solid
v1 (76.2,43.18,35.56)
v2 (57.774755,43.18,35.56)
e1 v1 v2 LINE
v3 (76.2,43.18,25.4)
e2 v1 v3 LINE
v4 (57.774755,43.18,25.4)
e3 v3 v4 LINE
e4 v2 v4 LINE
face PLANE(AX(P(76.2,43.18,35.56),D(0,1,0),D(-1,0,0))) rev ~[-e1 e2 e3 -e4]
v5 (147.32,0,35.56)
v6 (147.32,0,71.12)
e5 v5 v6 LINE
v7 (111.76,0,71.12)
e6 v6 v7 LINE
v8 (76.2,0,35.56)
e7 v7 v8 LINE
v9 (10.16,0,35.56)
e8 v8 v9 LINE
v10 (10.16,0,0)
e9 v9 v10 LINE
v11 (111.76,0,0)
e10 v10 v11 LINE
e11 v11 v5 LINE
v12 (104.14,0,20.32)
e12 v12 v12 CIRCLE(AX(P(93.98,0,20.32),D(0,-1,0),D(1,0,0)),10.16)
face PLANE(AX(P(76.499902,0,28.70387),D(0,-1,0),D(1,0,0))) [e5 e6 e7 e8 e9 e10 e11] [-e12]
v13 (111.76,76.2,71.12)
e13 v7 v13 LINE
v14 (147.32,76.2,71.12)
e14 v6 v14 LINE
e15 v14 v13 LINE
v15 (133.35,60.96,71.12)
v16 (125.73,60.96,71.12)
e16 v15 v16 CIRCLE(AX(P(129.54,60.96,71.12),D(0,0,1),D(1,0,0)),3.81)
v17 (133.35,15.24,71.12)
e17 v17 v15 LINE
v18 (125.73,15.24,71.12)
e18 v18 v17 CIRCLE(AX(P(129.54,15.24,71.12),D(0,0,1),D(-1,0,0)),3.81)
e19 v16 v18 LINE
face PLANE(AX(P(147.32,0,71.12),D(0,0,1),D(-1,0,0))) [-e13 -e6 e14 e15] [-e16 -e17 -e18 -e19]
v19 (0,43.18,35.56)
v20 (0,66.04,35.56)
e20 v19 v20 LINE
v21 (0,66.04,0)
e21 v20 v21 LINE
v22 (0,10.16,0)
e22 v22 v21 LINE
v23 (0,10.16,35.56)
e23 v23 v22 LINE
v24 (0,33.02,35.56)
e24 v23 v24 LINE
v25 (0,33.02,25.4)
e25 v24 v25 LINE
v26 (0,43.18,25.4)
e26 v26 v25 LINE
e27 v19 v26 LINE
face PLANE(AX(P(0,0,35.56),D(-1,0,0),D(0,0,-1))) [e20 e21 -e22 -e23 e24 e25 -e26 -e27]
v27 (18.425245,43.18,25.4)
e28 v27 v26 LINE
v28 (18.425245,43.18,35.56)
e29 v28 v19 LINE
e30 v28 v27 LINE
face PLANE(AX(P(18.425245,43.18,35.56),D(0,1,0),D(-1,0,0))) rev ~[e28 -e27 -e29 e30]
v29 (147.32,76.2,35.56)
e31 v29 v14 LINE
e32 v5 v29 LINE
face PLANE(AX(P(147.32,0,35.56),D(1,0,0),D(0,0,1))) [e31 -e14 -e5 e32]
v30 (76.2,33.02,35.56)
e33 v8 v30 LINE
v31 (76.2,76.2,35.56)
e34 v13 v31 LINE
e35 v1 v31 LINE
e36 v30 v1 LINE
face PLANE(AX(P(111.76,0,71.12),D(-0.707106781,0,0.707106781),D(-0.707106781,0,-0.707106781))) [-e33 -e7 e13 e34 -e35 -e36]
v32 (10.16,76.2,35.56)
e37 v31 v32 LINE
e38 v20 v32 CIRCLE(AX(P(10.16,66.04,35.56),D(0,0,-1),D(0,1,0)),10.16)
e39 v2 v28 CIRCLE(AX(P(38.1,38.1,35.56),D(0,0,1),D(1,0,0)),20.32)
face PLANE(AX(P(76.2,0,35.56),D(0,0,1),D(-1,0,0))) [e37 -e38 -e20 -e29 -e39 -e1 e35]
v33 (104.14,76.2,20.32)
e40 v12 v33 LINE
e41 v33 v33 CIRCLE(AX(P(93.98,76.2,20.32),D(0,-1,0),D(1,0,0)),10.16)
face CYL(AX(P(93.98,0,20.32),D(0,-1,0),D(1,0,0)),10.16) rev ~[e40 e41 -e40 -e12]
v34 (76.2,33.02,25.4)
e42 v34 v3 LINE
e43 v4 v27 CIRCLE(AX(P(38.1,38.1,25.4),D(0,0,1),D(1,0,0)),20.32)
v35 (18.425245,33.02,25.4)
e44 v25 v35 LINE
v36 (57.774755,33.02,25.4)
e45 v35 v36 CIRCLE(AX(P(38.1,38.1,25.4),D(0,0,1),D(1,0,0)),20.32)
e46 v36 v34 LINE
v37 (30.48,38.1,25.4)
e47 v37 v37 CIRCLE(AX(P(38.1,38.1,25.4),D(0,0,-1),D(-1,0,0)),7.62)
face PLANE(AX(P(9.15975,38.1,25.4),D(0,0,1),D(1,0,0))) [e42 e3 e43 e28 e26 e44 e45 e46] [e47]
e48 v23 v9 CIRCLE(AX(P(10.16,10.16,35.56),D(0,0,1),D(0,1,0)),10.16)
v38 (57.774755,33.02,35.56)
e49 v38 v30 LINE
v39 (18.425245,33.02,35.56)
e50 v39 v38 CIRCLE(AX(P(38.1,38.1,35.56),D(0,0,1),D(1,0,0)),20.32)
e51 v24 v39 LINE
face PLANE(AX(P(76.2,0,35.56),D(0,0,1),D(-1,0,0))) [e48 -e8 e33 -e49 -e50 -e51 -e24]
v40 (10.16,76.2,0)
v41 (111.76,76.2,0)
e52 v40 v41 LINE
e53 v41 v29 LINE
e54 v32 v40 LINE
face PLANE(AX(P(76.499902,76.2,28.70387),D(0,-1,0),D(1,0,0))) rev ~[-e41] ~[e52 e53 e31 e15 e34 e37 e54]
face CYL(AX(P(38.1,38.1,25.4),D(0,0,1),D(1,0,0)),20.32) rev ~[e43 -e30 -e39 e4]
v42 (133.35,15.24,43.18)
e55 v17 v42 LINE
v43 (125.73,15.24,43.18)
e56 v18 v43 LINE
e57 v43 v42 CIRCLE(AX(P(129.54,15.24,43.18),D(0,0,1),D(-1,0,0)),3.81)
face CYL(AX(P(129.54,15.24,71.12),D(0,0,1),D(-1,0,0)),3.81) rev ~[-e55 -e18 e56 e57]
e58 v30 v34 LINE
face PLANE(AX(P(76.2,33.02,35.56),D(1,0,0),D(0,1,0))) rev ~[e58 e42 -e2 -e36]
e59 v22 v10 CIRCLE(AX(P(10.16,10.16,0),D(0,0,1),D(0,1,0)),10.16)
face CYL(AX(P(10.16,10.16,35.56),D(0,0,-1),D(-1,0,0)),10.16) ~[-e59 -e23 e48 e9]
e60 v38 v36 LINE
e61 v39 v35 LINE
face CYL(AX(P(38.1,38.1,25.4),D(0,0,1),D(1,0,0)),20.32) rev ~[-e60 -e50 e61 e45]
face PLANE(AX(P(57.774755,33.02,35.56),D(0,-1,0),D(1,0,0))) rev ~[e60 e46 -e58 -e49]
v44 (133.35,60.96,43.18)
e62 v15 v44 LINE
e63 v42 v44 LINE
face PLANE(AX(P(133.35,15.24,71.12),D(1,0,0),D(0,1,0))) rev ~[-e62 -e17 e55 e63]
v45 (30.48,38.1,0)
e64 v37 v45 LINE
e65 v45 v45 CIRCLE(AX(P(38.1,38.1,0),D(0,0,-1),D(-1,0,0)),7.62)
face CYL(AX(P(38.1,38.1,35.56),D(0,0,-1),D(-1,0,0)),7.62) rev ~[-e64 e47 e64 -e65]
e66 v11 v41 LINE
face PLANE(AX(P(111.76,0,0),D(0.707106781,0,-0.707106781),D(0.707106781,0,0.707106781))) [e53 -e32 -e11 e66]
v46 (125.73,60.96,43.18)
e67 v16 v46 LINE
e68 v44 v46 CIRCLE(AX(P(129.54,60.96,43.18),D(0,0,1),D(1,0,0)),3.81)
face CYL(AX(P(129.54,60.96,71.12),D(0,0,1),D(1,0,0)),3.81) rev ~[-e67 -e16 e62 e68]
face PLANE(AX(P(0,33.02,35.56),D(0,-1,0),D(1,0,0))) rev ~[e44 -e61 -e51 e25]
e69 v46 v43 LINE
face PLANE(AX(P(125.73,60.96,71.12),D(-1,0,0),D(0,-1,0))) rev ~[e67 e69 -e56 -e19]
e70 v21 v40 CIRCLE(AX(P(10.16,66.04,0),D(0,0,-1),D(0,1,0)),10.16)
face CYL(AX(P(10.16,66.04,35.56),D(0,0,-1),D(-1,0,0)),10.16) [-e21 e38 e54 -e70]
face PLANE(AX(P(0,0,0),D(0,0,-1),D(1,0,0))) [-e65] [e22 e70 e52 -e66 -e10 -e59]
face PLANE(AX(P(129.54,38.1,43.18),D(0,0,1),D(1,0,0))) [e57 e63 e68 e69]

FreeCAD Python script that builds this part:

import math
import FreeCAD as App
import Part
import Sketcher
Q = App.Units.Quantity


def edges_at(feature, points):
    """Names of the edges that pass closest to the given points."""
    edges = feature.Shape.Edges
    near = lambda p: min(range(len(edges)), key=lambda i: edges[i].distToShape(Part.Vertex(*p))[0])
    return sorted({f"Edge{near(p) + 1}" for p in points})

doc = App.newDocument("Part")
body = doc.addObject("PartDesign::Body", "Body")

# Sketch on XZ plane
sketch1 = body.newObject("Sketcher::SketchObject", "Sketch")
sketch1.AttachmentSupport = (doc.getObject("XZ_Plane"), [""])
sketch1.MapMode = "FlatFace"
sketch1.addGeometry(Part.LineSegment(App.Vector(0, 36, 0), App.Vector(0, 0, 0)), False)
sketch1.addGeometry(Part.LineSegment(App.Vector(0, 0, 0), App.Vector(112, 0, 0)), False)
sketch1.addGeometry(Part.LineSegment(App.Vector(112, 0, 0), App.Vector(147, 36, 0)), False)
sketch1.addGeometry(Part.LineSegment(App.Vector(147, 36, 0), App.Vector(147, 71, 0)), False)
sketch1.addGeometry(Part.LineSegment(App.Vector(147, 71, 0), App.Vector(112, 71, 0)), False)
sketch1.addGeometry(Part.LineSegment(App.Vector(112, 71, 0), App.Vector(76, 36, 0)), False)
sketch1.addGeometry(Part.LineSegment(App.Vector(76, 36, 0), App.Vector(0, 36, 0)), False)
sketch1.addConstraint(Sketcher.Constraint("Coincident", 0, 2, 1, 1))
sketch1.addConstraint(Sketcher.Constraint("Coincident", 1, 2, 2, 1))
sketch1.addConstraint(Sketcher.Constraint("Coincident", 2, 2, 3, 1))
sketch1.addConstraint(Sketcher.Constraint("Coincident", 3, 2, 4, 1))
sketch1.addConstraint(Sketcher.Constraint("Coincident", 4, 2, 5, 1))
sketch1.addConstraint(Sketcher.Constraint("Coincident", 5, 2, 6, 1))
sketch1.addConstraint(Sketcher.Constraint("Coincident", 6, 2, 0, 1))
sketch1.addConstraint(Sketcher.Constraint("Vertical", 0))
sketch1.addConstraint(Sketcher.Constraint("Horizontal", 1))
sketch1.addConstraint(Sketcher.Constraint("Vertical", 3))
sketch1.addConstraint(Sketcher.Constraint("Horizontal", 4))
sketch1.addConstraint(Sketcher.Constraint("Horizontal", 6))
sketch1.addConstraint(Sketcher.Constraint("Coincident", 0, 2, -1, 1))
sketch1.addConstraint(Sketcher.Constraint("Parallel", 2, 5))
sketch1.addConstraint(Sketcher.Constraint("Horizontal", 2, 2, 5, 2))
sketch1.addConstraint(Sketcher.Constraint("Vertical", 1, 2, 4, 2))
sketch1.addConstraint(Sketcher.Constraint("Equal", 4, 0))
sketch1.addConstraint(Sketcher.Constraint("Equal", 0, 3))
sketch1.addConstraint(Sketcher.Constraint("DistanceX", 6, 2, 6, 1, Q("3 in")))
sketch1.addConstraint(Sketcher.Constraint("DistanceX", 1, 1, 1, 2, Q("4.4 in")))
pad1 = body.newObject("PartDesign::Pad", "Pad")
pad1.Profile = sketch1
pad1.Length = Q("3 in")
pad1.Reversed = True

# Sketch on XY plane
sketch2 = body.newObject("Sketcher::SketchObject", "Sketch001")
sketch2.AttachmentSupport = (doc.getObject("XY_Plane"), [""])
sketch2.MapMode = "FlatFace"
sketch2.AttachmentOffset = App.Placement(App.Vector(0, 0, 2.8 * 25.4), App.Rotation())
sketch2.addGeometry(Part.ArcOfCircle(Part.Circle(App.Vector(129.5, 15.2, 0), App.Vector(0, 0, 1), 3.8), math.radians(180), math.radians(360)), False)
sketch2.addGeometry(Part.LineSegment(App.Vector(133.3, 15.2, 0), App.Vector(133.3, 61, 0)), False)
sketch2.addGeometry(Part.ArcOfCircle(Part.Circle(App.Vector(129.5, 61, 0), App.Vector(0, 0, 1), 3.8), math.radians(0), math.radians(180)), False)
sketch2.addGeometry(Part.LineSegment(App.Vector(125.7, 61, 0), App.Vector(125.7, 15.2, 0)), False)
sketch2.addConstraint(Sketcher.Constraint("Tangent", 0, 2, 1, 1))
sketch2.addConstraint(Sketcher.Constraint("Tangent", 1, 2, 2, 1))
sketch2.addConstraint(Sketcher.Constraint("Tangent", 2, 2, 3, 1))
sketch2.addConstraint(Sketcher.Constraint("Tangent", 3, 2, 0, 1))
sketch2.addConstraint(Sketcher.Constraint("Vertical", 1))
sketch2.addConstraint(Sketcher.Constraint("Vertical", 3))
sketch2.addConstraint(Sketcher.Constraint("Radius", 0, Q("0.15 in")))
sketch2.addConstraint(Sketcher.Constraint("DistanceY", 1, 1, 1, 2, Q("1.8 in")))
sketch2.addConstraint(Sketcher.Constraint("DistanceX", -1, 1, 0, 3, Q("5.1 in")))
sketch2.addConstraint(Sketcher.Constraint("DistanceY", -1, 1, 0, 3, Q("0.6 in")))
pocket1 = body.newObject("PartDesign::Pocket", "Pocket")
pocket1.Profile = sketch2
pocket1.Length = Q("1.1 in")

# Sketch on XZ plane
sketch3 = body.newObject("Sketcher::SketchObject", "Sketch002")
sketch3.AttachmentSupport = (doc.getObject("XZ_Plane"), [""])
sketch3.MapMode = "FlatFace"
sketch3.addGeometry(Part.Circle(App.Vector(94, 20, 0), App.Vector(0, 0, 1), 10), False)
sketch3.addConstraint(Sketcher.Constraint("Diameter", 0, Q("0.8 in")))
sketch3.addConstraint(Sketcher.Constraint("DistanceX", -1, 1, 0, 3, Q("3.7 in")))
sketch3.addConstraint(Sketcher.Constraint("DistanceY", -1, 1, 0, 3, Q("0.8 in")))
pocket2 = body.newObject("PartDesign::Pocket", "Pocket001")
pocket2.Profile = sketch3
pocket2.Type = "ThroughAll"

# Sketch on XY plane
sketch4 = body.newObject("Sketcher::SketchObject", "Sketch003")
sketch4.AttachmentSupport = (doc.getObject("XY_Plane"), [""])
sketch4.MapMode = "FlatFace"
sketch4.AttachmentOffset = App.Placement(App.Vector(0, 0, 1.4 * 25.4), App.Rotation())
sketch4.addGeometry(Part.Circle(App.Vector(38, 38, 0), App.Vector(0, 0, 1), 8), False)
sketch4.addConstraint(Sketcher.Constraint("Diameter", 0, Q("0.6 in")))
sketch4.addConstraint(Sketcher.Constraint("DistanceX", -1, 1, 0, 3, Q("1.5 in")))
sketch4.addConstraint(Sketcher.Constraint("DistanceY", -1, 1, 0, 3, Q("1.5 in")))
doc.recompute()
hole = body.newObject("PartDesign::Hole", "Hole")
hole.Profile = sketch4
hole.ThreadType = "None"
hole.Diameter = Q("0.6 in")
hole.DepthType = "ThroughAll"
hole.HoleCutType = "Counterbore"
hole.HoleCutDiameter = Q("1.6 in")
hole.HoleCutDepth = Q("0.4 in")

# Sketch on XY plane
sketch5 = body.newObject("Sketcher::SketchObject", "Sketch004")
sketch5.AttachmentSupport = (doc.getObject("XY_Plane"), [""])
sketch5.MapMode = "FlatFace"
sketch5.AttachmentOffset = App.Placement(App.Vector(0, 0, 1.4 * 25.4), App.Rotation())
sketch5.addGeometry(Part.LineSegment(App.Vector(18, 43, 0), App.Vector(0, 43, 0)), False)
sketch5.addGeometry(Part.LineSegment(App.Vector(0, 43, 0), App.Vector(0, 33, 0)), False)
sketch5.addGeometry(Part.LineSegment(App.Vector(0, 33, 0), App.Vector(18, 33, 0)), False)
sketch5.addGeometry(Part.ArcOfCircle(Part.Circle(App.Vector(38, 38, 0), App.Vector(0, 0, 1), 20), math.radians(166), math.radians(194)), False)
sketch5.addGeometry(Part.LineSegment(App.Vector(76, 43, 0), App.Vector(58, 43, 0)), False)
sketch5.addGeometry(Part.ArcOfCircle(Part.Circle(App.Vector(38, 38, 0), App.Vector(0, 0, 1), 20), math.radians(0), math.radians(14.48)), False)
sketch5.addGeometry(Part.ArcOfCircle(Part.Circle(App.Vector(38, 38, 0), App.Vector(0, 0, 1), 20), math.radians(-14.48), math.radians(0)), False)
sketch5.addGeometry(Part.LineSegment(App.Vector(58, 33, 0), App.Vector(76, 33, 0)), False)
sketch5.addGeometry(Part.LineSegment(App.Vector(76, 33, 0), App.Vector(76, 43, 0)), False)
sketch5.addConstraint(Sketcher.Constraint("Coincident", 0, 2, 1, 1))
sketch5.addConstraint(Sketcher.Constraint("Coincident", 1, 2, 2, 1))
sketch5.addConstraint(Sketcher.Constraint("Coincident", 2, 2, 3, 2))
sketch5.addConstraint(Sketcher.Constraint("Coincident", 3, 1, 0, 1))
sketch5.addConstraint(Sketcher.Constraint("Coincident", 4, 2, 5, 2))
sketch5.addConstraint(Sketcher.Constraint("Tangent", 5, 1, 6, 2))
sketch5.addConstraint(Sketcher.Constraint("Coincident", 6, 1, 7, 1))
sketch5.addConstraint(Sketcher.Constraint("Coincident", 7, 2, 8, 1))
sketch5.addConstraint(Sketcher.Constraint("Coincident", 8, 2, 4, 1))
sketch5.addConstraint(Sketcher.Constraint("Horizontal", 0))
sketch5.addConstraint(Sketcher.Constraint("Vertical", 1))
sketch5.addConstraint(Sketcher.Constraint("Horizontal", 2))
sketch5.addConstraint(Sketcher.Constraint("Horizontal", 4))
sketch5.addConstraint(Sketcher.Constraint("Horizontal", 7))
sketch5.addConstraint(Sketcher.Constraint("Vertical", 8))
sketch5.addConstraint(Sketcher.Constraint("Equal", 5, 6))
sketch5.addConstraint(Sketcher.Constraint("PointOnObject", 0, 2, -2))
sketch5.addConstraint(Sketcher.Constraint("Horizontal", 3, 1, 4, 2))
sketch5.addConstraint(Sketcher.Constraint("Horizontal", 3, 3, 5, 1))
sketch5.addConstraint(Sketcher.Constraint("Horizontal", 2, 2, 6, 1))
sketch5.addConstraint(Sketcher.Constraint("Vertical", 2, 2, 3, 1))
sketch5.addConstraint(Sketcher.Constraint("Vertical", 4, 2, 6, 1))
sketch5.addConstraint(Sketcher.Constraint("Equal", 2, 4))
sketch5.addConstraint(Sketcher.Constraint("DistanceY", 1, 2, 1, 1, Q("0.4 in")))
sketch5.addConstraint(Sketcher.Constraint("DistanceX", -1, 1, 7, 2, Q("3 in")))
sketch5.addConstraint(Sketcher.Constraint("DistanceY", -1, 1, 3, 3, Q("1.5 in")))
sketch5.addConstraint(Sketcher.Constraint("DistanceX", -1, 1, 5, 1, Q("2.3 in")))
sketch5.addConstraint(Sketcher.Constraint("Radius", 3, 20.319988))
sketch5.addConstraint(Sketcher.Constraint("Radius", 5, 20.320032))
pocket3 = body.newObject("PartDesign::Pocket", "Pocket002")
pocket3.Profile = sketch5
pocket3.Length = Q("0.4 in")
doc.recompute()

fillet = body.newObject("PartDesign::Fillet", "Fillet")
fillet.Base = (pocket3, edges_at(pocket3, [(0, 76.2, 17.78), (0, 0, 17.78)]))
fillet.Radius = Q("0.4 in")

doc.recompute()
